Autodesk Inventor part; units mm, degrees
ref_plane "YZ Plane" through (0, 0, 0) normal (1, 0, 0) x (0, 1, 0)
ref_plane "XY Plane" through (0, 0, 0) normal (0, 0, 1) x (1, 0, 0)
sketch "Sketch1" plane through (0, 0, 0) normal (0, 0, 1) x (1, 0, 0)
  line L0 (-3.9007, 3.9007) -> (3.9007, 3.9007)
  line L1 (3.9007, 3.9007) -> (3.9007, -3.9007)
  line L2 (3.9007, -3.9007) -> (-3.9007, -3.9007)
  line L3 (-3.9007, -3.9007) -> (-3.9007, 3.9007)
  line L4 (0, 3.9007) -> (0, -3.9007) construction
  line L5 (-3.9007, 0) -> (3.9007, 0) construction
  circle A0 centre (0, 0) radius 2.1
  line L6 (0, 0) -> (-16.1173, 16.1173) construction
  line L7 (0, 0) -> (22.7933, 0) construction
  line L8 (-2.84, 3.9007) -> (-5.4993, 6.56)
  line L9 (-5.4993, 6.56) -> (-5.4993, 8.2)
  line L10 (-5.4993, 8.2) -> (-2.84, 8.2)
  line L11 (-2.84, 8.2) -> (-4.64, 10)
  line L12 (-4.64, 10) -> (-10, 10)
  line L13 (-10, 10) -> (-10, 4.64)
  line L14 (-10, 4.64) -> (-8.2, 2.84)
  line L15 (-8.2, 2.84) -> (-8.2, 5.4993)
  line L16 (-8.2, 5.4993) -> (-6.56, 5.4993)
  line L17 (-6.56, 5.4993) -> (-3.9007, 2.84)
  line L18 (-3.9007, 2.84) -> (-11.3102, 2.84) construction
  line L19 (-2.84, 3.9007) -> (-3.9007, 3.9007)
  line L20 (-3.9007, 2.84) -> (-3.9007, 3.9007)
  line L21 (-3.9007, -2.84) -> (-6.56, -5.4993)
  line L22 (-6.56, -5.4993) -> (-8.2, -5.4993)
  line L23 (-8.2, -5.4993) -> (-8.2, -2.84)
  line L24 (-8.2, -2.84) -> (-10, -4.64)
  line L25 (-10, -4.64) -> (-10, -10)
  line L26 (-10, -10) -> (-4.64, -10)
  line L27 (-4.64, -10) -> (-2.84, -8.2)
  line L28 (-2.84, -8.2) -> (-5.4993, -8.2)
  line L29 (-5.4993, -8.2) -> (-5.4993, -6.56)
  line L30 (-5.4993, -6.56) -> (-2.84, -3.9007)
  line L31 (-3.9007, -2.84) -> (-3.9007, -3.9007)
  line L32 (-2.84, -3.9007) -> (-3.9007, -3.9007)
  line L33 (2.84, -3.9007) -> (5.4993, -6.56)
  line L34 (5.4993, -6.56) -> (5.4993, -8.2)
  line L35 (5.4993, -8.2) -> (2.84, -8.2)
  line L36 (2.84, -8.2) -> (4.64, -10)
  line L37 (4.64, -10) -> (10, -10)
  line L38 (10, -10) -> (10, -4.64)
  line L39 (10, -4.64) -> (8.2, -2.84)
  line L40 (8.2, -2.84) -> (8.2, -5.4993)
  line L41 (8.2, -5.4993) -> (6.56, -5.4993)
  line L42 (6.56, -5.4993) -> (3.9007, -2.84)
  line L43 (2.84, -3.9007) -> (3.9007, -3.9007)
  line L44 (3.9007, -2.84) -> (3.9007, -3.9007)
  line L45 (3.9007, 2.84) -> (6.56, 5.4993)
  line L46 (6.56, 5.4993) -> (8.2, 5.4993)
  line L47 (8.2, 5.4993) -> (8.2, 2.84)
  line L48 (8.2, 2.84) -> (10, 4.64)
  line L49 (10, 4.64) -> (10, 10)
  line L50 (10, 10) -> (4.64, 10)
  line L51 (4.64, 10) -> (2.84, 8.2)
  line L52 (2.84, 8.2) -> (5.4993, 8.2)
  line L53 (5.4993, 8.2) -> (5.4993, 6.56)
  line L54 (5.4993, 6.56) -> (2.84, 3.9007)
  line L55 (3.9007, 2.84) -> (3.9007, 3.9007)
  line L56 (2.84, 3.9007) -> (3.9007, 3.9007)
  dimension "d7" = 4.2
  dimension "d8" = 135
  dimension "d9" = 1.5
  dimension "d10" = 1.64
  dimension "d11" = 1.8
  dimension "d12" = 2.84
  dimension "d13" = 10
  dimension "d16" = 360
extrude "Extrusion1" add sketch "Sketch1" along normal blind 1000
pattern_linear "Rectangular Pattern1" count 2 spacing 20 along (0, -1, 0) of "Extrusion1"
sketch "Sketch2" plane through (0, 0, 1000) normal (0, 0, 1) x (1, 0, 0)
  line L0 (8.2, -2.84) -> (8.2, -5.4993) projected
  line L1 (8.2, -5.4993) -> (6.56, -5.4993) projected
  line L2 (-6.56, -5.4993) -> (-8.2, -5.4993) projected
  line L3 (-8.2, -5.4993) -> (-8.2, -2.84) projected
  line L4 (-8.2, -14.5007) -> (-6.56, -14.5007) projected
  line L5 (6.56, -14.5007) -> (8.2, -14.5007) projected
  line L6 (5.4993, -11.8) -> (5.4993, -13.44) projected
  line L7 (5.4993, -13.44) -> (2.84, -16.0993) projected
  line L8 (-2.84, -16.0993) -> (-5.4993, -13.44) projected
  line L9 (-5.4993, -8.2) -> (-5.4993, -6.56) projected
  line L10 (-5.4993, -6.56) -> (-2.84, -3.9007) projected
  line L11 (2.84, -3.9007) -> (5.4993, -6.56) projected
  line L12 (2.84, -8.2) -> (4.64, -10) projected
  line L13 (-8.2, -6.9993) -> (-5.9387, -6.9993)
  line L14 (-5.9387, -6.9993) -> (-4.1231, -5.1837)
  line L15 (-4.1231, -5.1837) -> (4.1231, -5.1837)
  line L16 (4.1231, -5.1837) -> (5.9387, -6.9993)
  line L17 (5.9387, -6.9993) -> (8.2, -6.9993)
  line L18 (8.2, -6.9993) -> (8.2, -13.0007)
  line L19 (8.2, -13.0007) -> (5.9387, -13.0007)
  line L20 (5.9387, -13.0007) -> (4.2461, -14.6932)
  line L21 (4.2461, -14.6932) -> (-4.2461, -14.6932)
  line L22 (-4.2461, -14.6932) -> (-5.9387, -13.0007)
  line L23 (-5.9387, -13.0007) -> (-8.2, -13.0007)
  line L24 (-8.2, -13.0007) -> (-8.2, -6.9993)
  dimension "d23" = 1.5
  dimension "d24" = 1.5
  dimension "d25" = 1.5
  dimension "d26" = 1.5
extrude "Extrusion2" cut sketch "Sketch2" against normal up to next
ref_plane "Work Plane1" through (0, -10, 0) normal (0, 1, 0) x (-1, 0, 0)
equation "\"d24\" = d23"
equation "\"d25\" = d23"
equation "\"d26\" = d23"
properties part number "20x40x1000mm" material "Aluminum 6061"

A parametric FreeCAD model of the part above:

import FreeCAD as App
import Part
import Sketcher

V = App.Vector
Q = App.Units.Quantity

doc = App.newDocument("Part")
params = doc.addObject("Spreadsheet::Sheet", "Params")
for row, (alias, value) in enumerate([
    ("sketch1_diameter", "4.2 mm"),
    ("sketch1_width", "1.64 mm"),
    ("pad1_length", "1000 mm"),
    ("linearpattern_pitch", "20 mm"),
    ("pocket1_length", "1000 mm"),
], start=1):
    params.set(f"A{row}", alias)
    params.set(f"B{row}", "=" + value)
    params.setAlias(f"B{row}", alias)

body = doc.addObject("PartDesign::Body", "Body")

sketch1 = body.newObject("Sketcher::SketchObject", "Sketch")
sketch1.AttachmentSupport = (doc.getObject("XY_Plane"), [""])
sketch1.MapMode = "FlatFace"
sketch1.addGeometry(Part.LineSegment(V(-6.6, 5.5, 0), V(-3.9, 2.8, 0)), False)
sketch1.addGeometry(Part.LineSegment(V(-3.9, 2.8, 0), V(-3.9, -2.8, 0)), False)
sketch1.addGeometry(Part.LineSegment(V(-3.9, -2.8, 0), V(-6.6, -5.5, 0)), False)
sketch1.addGeometry(Part.LineSegment(V(-6.6, -5.5, 0), V(-8.2, -5.5, 0)), False)
sketch1.addGeometry(Part.LineSegment(V(-8.2, -5.5, 0), V(-8.2, -2.8, 0)), False)
sketch1.addGeometry(Part.LineSegment(V(-8.2, -2.8, 0), V(-10, -4.6, 0)), False)
sketch1.addGeometry(Part.LineSegment(V(-10, -4.6, 0), V(-10, -10, 0)), False)
sketch1.addGeometry(Part.LineSegment(V(-10, -10, 0), V(-4.6, -10, 0)), False)
sketch1.addGeometry(Part.LineSegment(V(-4.6, -10, 0), V(-2.8, -8.2, 0)), False)
sketch1.addGeometry(Part.LineSegment(V(-2.8, -8.2, 0), V(-5.5, -8.2, 0)), False)
sketch1.addGeometry(Part.LineSegment(V(-5.5, -8.2, 0), V(-5.5, -6.6, 0)), False)
sketch1.addGeometry(Part.LineSegment(V(-5.5, -6.6, 0), V(-2.8, -3.9, 0)), False)
sketch1.addGeometry(Part.LineSegment(V(-2.8, -3.9, 0), V(2.8, -3.9, 0)), False)
sketch1.addGeometry(Part.LineSegment(V(2.8, -3.9, 0), V(5.5, -6.6, 0)), False)
sketch1.addGeometry(Part.LineSegment(V(5.5, -6.6, 0), V(5.5, -8.2, 0)), False)
sketch1.addGeometry(Part.LineSegment(V(5.5, -8.2, 0), V(2.8, -8.2, 0)), False)
sketch1.addGeometry(Part.LineSegment(V(2.8, -8.2, 0), V(4.6, -10, 0)), False)
sketch1.addGeometry(Part.LineSegment(V(4.6, -10, 0), V(10, -10, 0)), False)
sketch1.addGeometry(Part.LineSegment(V(10, -10, 0), V(10, -4.6, 0)), False)
sketch1.addGeometry(Part.LineSegment(V(10, -4.6, 0), V(8.2, -2.8, 0)), False)
sketch1.addGeometry(Part.LineSegment(V(8.2, -2.8, 0), V(8.2, -5.5, 0)), False)
sketch1.addGeometry(Part.LineSegment(V(8.2, -5.5, 0), V(6.6, -5.5, 0)), False)
sketch1.addGeometry(Part.LineSegment(V(6.6, -5.5, 0), V(3.9, -2.8, 0)), False)
sketch1.addGeometry(Part.LineSegment(V(3.9, -2.8, 0), V(3.9, 2.8, 0)), False)
sketch1.addGeometry(Part.LineSegment(V(3.9, 2.8, 0), V(6.6, 5.5, 0)), False)
sketch1.addGeometry(Part.LineSegment(V(6.6, 5.5, 0), V(8.2, 5.5, 0)), False)
sketch1.addGeometry(Part.LineSegment(V(8.2, 5.5, 0), V(8.2, 2.8, 0)), False)
sketch1.addGeometry(Part.LineSegment(V(8.2, 2.8, 0), V(10, 4.6, 0)), False)
sketch1.addGeometry(Part.LineSegment(V(10, 4.6, 0), V(10, 10, 0)), False)
sketch1.addGeometry(Part.LineSegment(V(10, 10, 0), V(4.6, 10, 0)), False)
sketch1.addGeometry(Part.LineSegment(V(4.6, 10, 0), V(2.8, 8.2, 0)), False)
sketch1.addGeometry(Part.LineSegment(V(2.8, 8.2, 0), V(5.5, 8.2, 0)), False)
sketch1.addGeometry(Part.LineSegment(V(5.5, 8.2, 0), V(5.5, 6.6, 0)), False)
sketch1.addGeometry(Part.LineSegment(V(5.5, 6.6, 0), V(2.8, 3.9, 0)), False)
sketch1.addGeometry(Part.LineSegment(V(2.8, 3.9, 0), V(-2.8, 3.9, 0)), False)
sketch1.addGeometry(Part.LineSegment(V(-2.8, 3.9, 0), V(-5.5, 6.6, 0)), False)
sketch1.addGeometry(Part.LineSegment(V(-5.5, 6.6, 0), V(-5.5, 8.2, 0)), False)
sketch1.addGeometry(Part.LineSegment(V(-5.5, 8.2, 0), V(-2.8, 8.2, 0)), False)
sketch1.addGeometry(Part.LineSegment(V(-2.8, 8.2, 0), V(-4.6, 10, 0)), False)
sketch1.addGeometry(Part.LineSegment(V(-4.6, 10, 0), V(-10, 10, 0)), False)
sketch1.addGeometry(Part.LineSegment(V(-10, 10, 0), V(-10, 4.6, 0)), False)
sketch1.addGeometry(Part.LineSegment(V(-10, 4.6, 0), V(-8.2, 2.8, 0)), False)
sketch1.addGeometry(Part.LineSegment(V(-8.2, 2.8, 0), V(-8.2, 5.5, 0)), False)
sketch1.addGeometry(Part.LineSegment(V(-8.2, 5.5, 0), V(-6.6, 5.5, 0)), False)
sketch1.addGeometry(Part.Circle(V(0, 0, 0), V(0, 0, 1), 2.1), False)
sketch1.addConstraint(Sketcher.Constraint("Coincident", 0, 2, 1, 1))
sketch1.addConstraint(Sketcher.Constraint("Coincident", 1, 2, 2, 1))
sketch1.addConstraint(Sketcher.Constraint("Coincident", 2, 2, 3, 1))
sketch1.addConstraint(Sketcher.Constraint("Coincident", 3, 2, 4, 1))
sketch1.addConstraint(Sketcher.Constraint("Coincident", 4, 2, 5, 1))
sketch1.addConstraint(Sketcher.Constraint("Coincident", 5, 2, 6, 1))
sketch1.addConstraint(Sketcher.Constraint("Coincident", 6, 2, 7, 1))
sketch1.addConstraint(Sketcher.Constraint("Coincident", 7, 2, 8, 1))
sketch1.addConstraint(Sketcher.Constraint("Coincident", 8, 2, 9, 1))
sketch1.addConstraint(Sketcher.Constraint("Coincident", 9, 2, 10, 1))
sketch1.addConstraint(Sketcher.Constraint("Coincident", 10, 2, 11, 1))
sketch1.addConstraint(Sketcher.Constraint("Coincident", 11, 2, 12, 1))
sketch1.addConstraint(Sketcher.Constraint("Coincident", 12, 2, 13, 1))
sketch1.addConstraint(Sketcher.Constraint("Coincident", 13, 2, 14, 1))
sketch1.addConstraint(Sketcher.Constraint("Coincident", 14, 2, 15, 1))
sketch1.addConstraint(Sketcher.Constraint("Coincident", 15, 2, 16, 1))
sketch1.addConstraint(Sketcher.Constraint("Coincident", 16, 2, 17, 1))
sketch1.addConstraint(Sketcher.Constraint("Coincident", 17, 2, 18, 1))
sketch1.addConstraint(Sketcher.Constraint("Coincident", 18, 2, 19, 1))
sketch1.addConstraint(Sketcher.Constraint("Coincident", 19, 2, 20, 1))
sketch1.addConstraint(Sketcher.Constraint("Coincident", 20, 2, 21, 1))
sketch1.addConstraint(Sketcher.Constraint("Coincident", 21, 2, 22, 1))
sketch1.addConstraint(Sketcher.Constraint("Coincident", 22, 2, 23, 1))
sketch1.addConstraint(Sketcher.Constraint("Coincident", 23, 2, 24, 1))
sketch1.addConstraint(Sketcher.Constraint("Coincident", 24, 2, 25, 1))
sketch1.addConstraint(Sketcher.Constraint("Coincident", 25, 2, 26, 1))
sketch1.addConstraint(Sketcher.Constraint("Coincident", 26, 2, 27, 1))
sketch1.addConstraint(Sketcher.Constraint("Coincident", 27, 2, 28, 1))
sketch1.addConstraint(Sketcher.Constraint("Coincident", 28, 2, 29, 1))
sketch1.addConstraint(Sketcher.Constraint("Coincident", 29, 2, 30, 1))
sketch1.addConstraint(Sketcher.Constraint("Coincident", 30, 2, 31, 1))
sketch1.addConstraint(Sketcher.Constraint("Coincident", 31, 2, 32, 1))
sketch1.addConstraint(Sketcher.Constraint("Coincident", 32, 2, 33, 1))
sketch1.addConstraint(Sketcher.Constraint("Coincident", 33, 2, 34, 1))
sketch1.addConstraint(Sketcher.Constraint("Coincident", 34, 2, 35, 1))
sketch1.addConstraint(Sketcher.Constraint("Coincident", 35, 2, 36, 1))
sketch1.addConstraint(Sketcher.Constraint("Coincident", 36, 2, 37, 1))
sketch1.addConstraint(Sketcher.Constraint("Coincident", 37, 2, 38, 1))
sketch1.addConstraint(Sketcher.Constraint("Coincident", 38, 2, 39, 1))
sketch1.addConstraint(Sketcher.Constraint("Coincident", 39, 2, 40, 1))
sketch1.addConstraint(Sketcher.Constraint("Coincident", 40, 2, 41, 1))
sketch1.addConstraint(Sketcher.Constraint("Coincident", 41, 2, 42, 1))
sketch1.addConstraint(Sketcher.Constraint("Coincident", 42, 2, 43, 1))
sketch1.addConstraint(Sketcher.Constraint("Coincident", 43, 2, 0, 1))
sketch1.addConstraint(Sketcher.Constraint("Vertical", 1))
sketch1.addConstraint(Sketcher.Constraint("Horizontal", 3))
sketch1.addConstraint(Sketcher.Constraint("Vertical", 4))
sketch1.addConstraint(Sketcher.Constraint("Vertical", 6))
sketch1.addConstraint(Sketcher.Constraint("Horizontal", 7))
sketch1.addConstraint(Sketcher.Constraint("Horizontal", 9))
sketch1.addConstraint(Sketcher.Constraint("Vertical", 10))
sketch1.addConstraint(Sketcher.Constraint("Horizontal", 12))
sketch1.addConstraint(Sketcher.Constraint("Vertical", 14))
sketch1.addConstraint(Sketcher.Constraint("Horizontal", 15))
sketch1.addConstraint(Sketcher.Constraint("Horizontal", 17))
sketch1.addConstraint(Sketcher.Constraint("Vertical", 18))
sketch1.addConstraint(Sketcher.Constraint("Vertical", 20))
sketch1.addConstraint(Sketcher.Constraint("Horizontal", 21))
sketch1.addConstraint(Sketcher.Constraint("Vertical", 23))
sketch1.addConstraint(Sketcher.Constraint("Horizontal", 25))
sketch1.addConstraint(Sketcher.Constraint("Vertical", 26))
sketch1.addConstraint(Sketcher.Constraint("Vertical", 28))
sketch1.addConstraint(Sketcher.Constraint("Horizontal", 29))
sketch1.addConstraint(Sketcher.Constraint("Horizontal", 31))
sketch1.addConstraint(Sketcher.Constraint("Vertical", 32))
sketch1.addConstraint(Sketcher.Constraint("Horizontal", 34))
sketch1.addConstraint(Sketcher.Constraint("Vertical", 36))
sketch1.addConstraint(Sketcher.Constraint("Horizontal", 37))
sketch1.addConstraint(Sketcher.Constraint("Horizontal", 39))
sketch1.addConstraint(Sketcher.Constraint("Vertical", 40))
sketch1.addConstraint(Sketcher.Constraint("Vertical", 42))
sketch1.addConstraint(Sketcher.Constraint("Horizontal", 43))
sketch1.addConstraint(Sketcher.Constraint("Coincident", 44, 3, -1, 1))
sketch1.addConstraint(Sketcher.Constraint("Symmetric", 0, 2, 22, 2, -1, 1))
sketch1.addConstraint(Sketcher.Constraint("Symmetric", 2, 2, 24, 2, -1, 1))
sketch1.addConstraint(Sketcher.Constraint("Symmetric", 4, 2, 26, 2, -1, 1))
sketch1.addConstraint(Sketcher.Constraint("Symmetric", 5, 2, 27, 2, -1, 1))
sketch1.addConstraint(Sketcher.Constraint("Symmetric", 7, 2, 29, 2, -1, 1))
sketch1.addConstraint(Sketcher.Constraint("Symmetric", 8, 2, 30, 2, -1, 1))
sketch1.addConstraint(Sketcher.Constraint("Symmetric", 10, 2, 32, 2, -1, 1))
sketch1.addConstraint(Sketcher.Constraint("Symmetric", 11, 2, 33, 2, -1, 1))
sketch1.addConstraint(Sketcher.Constraint("Symmetric", 13, 2, 35, 2, -1, 1))
sketch1.addConstraint(Sketcher.Constraint("Symmetric", 15, 2, 37, 2, -1, 1))
sketch1.addConstraint(Sketcher.Constraint("Symmetric", 16, 2, 38, 2, -1, 1))
sketch1.addConstraint(Sketcher.Constraint("Symmetric", 18, 2, 40, 2, -1, 1))
sketch1.addConstraint(Sketcher.Constraint("Symmetric", 19, 2, 41, 2, -1, 1))
sketch1.addConstraint(Sketcher.Constraint("Symmetric", 21, 2, 43, 2, -1, 1))
sketch1.addConstraint(Sketcher.Constraint("Symmetric", 10, 2, 13, 2, -2))
sketch1.addConstraint(Sketcher.Constraint("Symmetric", 8, 2, 15, 2, -2))
sketch1.addConstraint(Sketcher.Constraint("Symmetric", 7, 2, 16, 2, -2))
sketch1.addConstraint(Sketcher.Constraint("Symmetric", 5, 2, 18, 2, -2))
sketch1.addConstraint(Sketcher.Constraint("Symmetric", 4, 2, 19, 2, -2))
sketch1.addConstraint(Sketcher.Constraint("Symmetric", 2, 2, 21, 2, -2))
sketch1.addConstraint(Sketcher.Constraint("Perpendicular", 0, 2))
sketch1.addConstraint(Sketcher.Constraint("Parallel", 2, 5))
sketch1.addConstraint(Sketcher.Constraint("Parallel", 5, 8))
sketch1.addConstraint(Sketcher.Constraint("Parallel", 8, 11))
sketch1.addConstraint(Sketcher.Constraint("Perpendicular", 11, 13))
sketch1.addConstraint(Sketcher.Constraint("Parallel", 13, 16))
sketch1.addConstraint(Sketcher.Constraint("Perpendicular", 22, 24))
sketch1.addConstraint(Sketcher.Constraint("Perpendicular", 33, 35))
sketch1.addConstraint(Sketcher.Constraint("Horizontal", 1, 2, 4, 2))
sketch1.addConstraint(Sketcher.Constraint("Vertical", 8, 2, 11, 2))
sketch1.addConstraint(Sketcher.Constraint("Equal", 34, 1))
sketch1.addConstraint(Sketcher.Constraint("Equal", 37, 4))
sketch1.addConstraint(Sketcher.Constraint("Equal", 39, 6))
sketch1.addConstraint(Sketcher.Constraint("Equal", 43, 10))
sketch1.addConstraint(Sketcher.Constraint("Equal", 5, 8))
sketch1.addConstraint(Sketcher.Constraint("Diameter", 44, Q("4.2 mm")))
sketch1.addConstraint(Sketcher.Constraint("DistanceX", 5, 2, -1, 1, Q("10 mm")))
sketch1.addConstraint(Sketcher.Constraint("DistanceX", 3, 2, 3, 1, Q("1.64 mm")))
sketch1.addConstraint(Sketcher.Constraint("DistanceX", 5, 2, 3, 2, Q("1.8 mm")))
sketch1.addConstraint(Sketcher.Constraint("DistanceY", -1, 1, 0, 2, Q("2.84 mm")))
sketch1.addConstraint(Sketcher.Constraint("DistanceX", 9, 2, 9, 1, Q("2.6593 mm")))
sketch1.setExpression("Constraints[108]", "Params.sketch1_diameter")
sketch1.setExpression("Constraints[110]", "Params.sketch1_width")
pad1 = body.newObject("PartDesign::Pad", "Pad")
pad1.Profile = sketch1
pad1.setExpression("Length", "Params.pad1_length")
doc.recompute()

linearpattern = body.newObject("PartDesign::LinearPattern", "LinearPattern")
linearpattern.Originals = [pad1]
linearpattern.Direction = (doc.getObject("Y_Axis"), [""])
linearpattern.Mode = "offset"
linearpattern.setExpression("Offset", "Params.linearpattern_pitch")
linearpattern.Occurrences = 2
linearpattern.Reversed = True
body.Tip = linearpattern

sketch2 = body.newObject("Sketcher::SketchObject", "Sketch001")
sketch2.AttachmentSupport = (doc.getObject("XY_Plane"), [""])
sketch2.MapMode = "FlatFace"
sketch2.AttachmentOffset = App.Placement(V(0, 0, 1000), App.Rotation())
sketch2.addGeometry(Part.LineSegment(V(4.2, -14.7, 0), V(5.5, -13.4, 0)), False)
sketch2.addGeometry(Part.LineSegment(V(5.5, -13.4, 0), V(5.9, -13, 0)), False)
sketch2.addGeometry(Part.LineSegment(V(5.9, -13, 0), V(8.2, -13, 0)), False)
sketch2.addGeometry(Part.LineSegment(V(8.2, -13, 0), V(8.2, -7, 0)), False)
sketch2.addGeometry(Part.LineSegment(V(8.2, -7, 0), V(5.9, -7, 0)), False)
sketch2.addGeometry(Part.LineSegment(V(5.9, -7, 0), V(5.5, -6.6, 0)), False)
sketch2.addGeometry(Part.LineSegment(V(5.5, -6.6, 0), V(4.1, -5.2, 0)), False)
sketch2.addGeometry(Part.LineSegment(V(4.1, -5.2, 0), V(-4.1, -5.2, 0)), False)
sketch2.addGeometry(Part.LineSegment(V(-4.1, -5.2, 0), V(-5.5, -6.6, 0)), False)
sketch2.addGeometry(Part.LineSegment(V(-5.5, -6.6, 0), V(-5.9, -7, 0)), False)
sketch2.addGeometry(Part.LineSegment(V(-5.9, -7, 0), V(-8.2, -7, 0)), False)
sketch2.addGeometry(Part.LineSegment(V(-8.2, -7, 0), V(-8.2, -13, 0)), False)
sketch2.addGeometry(Part.LineSegment(V(-8.2, -13, 0), V(-5.9, -13, 0)), False)
sketch2.addGeometry(Part.LineSegment(V(-5.9, -13, 0), V(-5.5, -13.4, 0)), False)
sketch2.addGeometry(Part.LineSegment(V(-5.5, -13.4, 0), V(-4.2, -14.7, 0)), False)
sketch2.addGeometry(Part.LineSegment(V(-4.2, -14.7, 0), V(4.2, -14.7, 0)), False)
sketch2.addConstraint(Sketcher.Constraint("Coincident", 0, 2, 1, 1))
sketch2.addConstraint(Sketcher.Constraint("Coincident", 1, 2, 2, 1))
sketch2.addConstraint(Sketcher.Constraint("Coincident", 2, 2, 3, 1))
sketch2.addConstraint(Sketcher.Constraint("Coincident", 3, 2, 4, 1))
sketch2.addConstraint(Sketcher.Constraint("Coincident", 4, 2, 5, 1))
sketch2.addConstraint(Sketcher.Constraint("Coincident", 5, 2, 6, 1))
sketch2.addConstraint(Sketcher.Constraint("Coincident", 6, 2, 7, 1))
sketch2.addConstraint(Sketcher.Constraint("Coincident", 7, 2, 8, 1))
sketch2.addConstraint(Sketcher.Constraint("Coincident", 8, 2, 9, 1))
sketch2.addConstraint(Sketcher.Constraint("Coincident", 9, 2, 10, 1))
sketch2.addConstraint(Sketcher.Constraint("Coincident", 10, 2, 11, 1))
sketch2.addConstraint(Sketcher.Constraint("Coincident", 11, 2, 12, 1))
sketch2.addConstraint(Sketcher.Constraint("Coincident", 12, 2, 13, 1))
sketch2.addConstraint(Sketcher.Constraint("Coincident", 13, 2, 14, 1))
sketch2.addConstraint(Sketcher.Constraint("Coincident", 14, 2, 15, 1))
sketch2.addConstraint(Sketcher.Constraint("Coincident", 15, 2, 0, 1))
sketch2.addConstraint(Sketcher.Constraint("Horizontal", 2))
sketch2.addConstraint(Sketcher.Constraint("Vertical", 3))
sketch2.addConstraint(Sketcher.Constraint("Horizontal", 4))
sketch2.addConstraint(Sketcher.Constraint("Horizontal", 7))
sketch2.addConstraint(Sketcher.Constraint("Horizontal", 10))
sketch2.addConstraint(Sketcher.Constraint("Vertical", 11))
sketch2.addConstraint(Sketcher.Constraint("Horizontal", 12))
sketch2.addConstraint(Sketcher.Constraint("Horizontal", 15))
sketch2.addConstraint(Sketcher.Constraint("Symmetric", 5, 2, 8, 2, -2))
sketch2.addConstraint(Sketcher.Constraint("Symmetric", 4, 2, 9, 2, -2))
sketch2.addConstraint(Sketcher.Constraint("Symmetric", 2, 2, 11, 2, -2))
sketch2.addConstraint(Sketcher.Constraint("Symmetric", 0, 2, 13, 2, -2))
sketch2.addConstraint(Sketcher.Constraint("Parallel", 0, 1))
sketch2.addConstraint(Sketcher.Constraint("Perpendicular", 1, 5))
sketch2.addConstraint(Sketcher.Constraint("Parallel", 5, 6))
sketch2.addConstraint(Sketcher.Constraint("Perpendicular", 6, 8))
sketch2.addConstraint(Sketcher.Constraint("Parallel", 8, 9))
sketch2.addConstraint(Sketcher.Constraint("Perpendicular", 9, 13))
sketch2.addConstraint(Sketcher.Constraint("Parallel", 13, 14))
sketch2.addConstraint(Sketcher.Constraint("Vertical", 1, 2, 4, 2))
sketch2.addConstraint(Sketcher.Constraint("Vertical", 0, 2, 5, 2))
sketch2.addConstraint(Sketcher.Constraint("DistanceX", -1, 1, 2, 2, Q("8.2 mm")))
sketch2.addConstraint(Sketcher.Constraint("DistanceY", 0, 2, -1, 1, Q("13.44 mm")))
sketch2.addConstraint(Sketcher.Constraint("DistanceY", 5, 2, -1, 1, Q("6.56 mm")))
sketch2.addConstraint(Sketcher.Constraint("DistanceX", 2, 1, 2, 2, Q("2.2613 mm")))
sketch2.addConstraint(Sketcher.Constraint("DistanceX", 7, 2, 7, 1, Q("8.2462 mm")))
sketch2.addConstraint(Sketcher.Constraint("DistanceX", 15, 1, 15, 2, Q("8.4922 mm")))
sketch2.addConstraint(Sketcher.Constraint("DistanceY", 3, 1, 3, 2, Q("6.0014 mm")))
pocket1 = body.newObject("PartDesign::Pocket", "Pocket")
pocket1.Profile = sketch2
pocket1.setExpression("Length", "Params.pocket1_length")

doc.recompute()
